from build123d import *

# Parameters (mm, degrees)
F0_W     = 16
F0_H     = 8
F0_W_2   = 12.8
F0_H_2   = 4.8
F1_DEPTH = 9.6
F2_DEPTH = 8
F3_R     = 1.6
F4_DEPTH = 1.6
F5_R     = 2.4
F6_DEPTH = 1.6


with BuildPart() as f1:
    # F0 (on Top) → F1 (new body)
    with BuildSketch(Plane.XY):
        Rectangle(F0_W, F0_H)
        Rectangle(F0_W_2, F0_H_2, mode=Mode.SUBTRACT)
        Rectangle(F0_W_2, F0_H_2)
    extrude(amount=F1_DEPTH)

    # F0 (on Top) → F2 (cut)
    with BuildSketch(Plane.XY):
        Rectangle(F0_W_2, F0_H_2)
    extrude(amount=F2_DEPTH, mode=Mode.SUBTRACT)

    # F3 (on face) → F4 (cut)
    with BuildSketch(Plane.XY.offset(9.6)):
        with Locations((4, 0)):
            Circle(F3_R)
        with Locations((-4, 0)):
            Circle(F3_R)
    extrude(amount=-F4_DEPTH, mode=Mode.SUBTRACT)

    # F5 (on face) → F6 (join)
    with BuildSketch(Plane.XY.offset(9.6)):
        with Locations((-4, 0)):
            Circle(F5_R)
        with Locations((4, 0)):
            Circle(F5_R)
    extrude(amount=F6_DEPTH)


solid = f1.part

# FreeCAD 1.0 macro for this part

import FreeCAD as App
import Part
import Sketcher
Q = App.Units.Quantity

doc = App.newDocument("Part")
params = doc.addObject("Spreadsheet::Sheet", "Params")
for row, (alias, value) in enumerate([
    ("sketch1_width", "16 mm"),
    ("sketch1_height", "8 mm"),
    ("pad1_length", "9.6 mm"),
    ("sketch2_width", "12.8 mm"),
    ("sketch2_height", "4.8 mm"),
    ("pocket1_length", "8 mm"),
    ("sketch3_diameter", "3.2 mm"),
    ("pocket2_length", "1.6 mm"),
    ("sketch4_diameter", "4.8 mm"),
    ("pad2_length", "1.6 mm"),
], start=1):
    params.set(f"A{row}", alias)
    params.set(f"B{row}", "=" + value)
    params.setAlias(f"B{row}", alias)

body = doc.addObject("PartDesign::Body", "Body")

sketch1 = body.newObject("Sketcher::SketchObject", "Sketch")
sketch1.AttachmentSupport = (doc.getObject("XY_Plane"), [""])
sketch1.MapMode = "FlatFace"
sketch1.addGeometry([
    Part.LineSegment(App.Vector(-8, 4, 0), App.Vector(-8, -4, 0)),
    Part.LineSegment(App.Vector(-8, -4, 0), App.Vector(8, -4, 0)),
    Part.LineSegment(App.Vector(8, -4, 0), App.Vector(8, 4, 0)),
    Part.LineSegment(App.Vector(8, 4, 0), App.Vector(-8, 4, 0)),
], False)
sketch1.addConstraint([
    Sketcher.Constraint("Coincident", 0, 2, 1, 1),
    Sketcher.Constraint("Coincident", 1, 2, 2, 1),
    Sketcher.Constraint("Coincident", 2, 2, 3, 1),
    Sketcher.Constraint("Coincident", 3, 2, 0, 1),
    Sketcher.Constraint("Vertical", 0),
    Sketcher.Constraint("Horizontal", 1),
    Sketcher.Constraint("Vertical", 2),
    Sketcher.Constraint("Horizontal", 3),
    Sketcher.Constraint("Symmetric", 0, 2, 2, 2, -1, 1),
    Sketcher.Constraint("DistanceX", 1, 1, 1, 2, Q("16 mm")),
    Sketcher.Constraint("DistanceY", 0, 2, 0, 1, Q("8 mm")),
])
sketch1.setExpression("Constraints[9]", "Params.sketch1_width")
sketch1.setExpression("Constraints[10]", "Params.sketch1_height")
pad1 = body.newObject("PartDesign::Pad", "Pad")
pad1.Profile = sketch1
pad1.setExpression("Length", "Params.pad1_length")

sketch2 = body.newObject("Sketcher::SketchObject", "Sketch001")
sketch2.AttachmentSupport = (doc.getObject("XY_Plane"), [""])
sketch2.MapMode = "FlatFace"
sketch2.addGeometry([
    Part.LineSegment(App.Vector(-6.4, 2.4, 0), App.Vector(-6.4, -2.4, 0)),
    Part.LineSegment(App.Vector(-6.4, -2.4, 0), App.Vector(6.4, -2.4, 0)),
    Part.LineSegment(App.Vector(6.4, -2.4, 0), App.Vector(6.4, 2.4, 0)),
    Part.LineSegment(App.Vector(6.4, 2.4, 0), App.Vector(-6.4, 2.4, 0)),
], False)
sketch2.addConstraint([
    Sketcher.Constraint("Coincident", 0, 2, 1, 1),
    Sketcher.Constraint("Coincident", 1, 2, 2, 1),
    Sketcher.Constraint("Coincident", 2, 2, 3, 1),
    Sketcher.Constraint("Coincident", 3, 2, 0, 1),
    Sketcher.Constraint("Vertical", 0),
    Sketcher.Constraint("Horizontal", 1),
    Sketcher.Constraint("Vertical", 2),
    Sketcher.Constraint("Horizontal", 3),
    Sketcher.Constraint("Symmetric", 0, 2, 2, 2, -1, 1),
    Sketcher.Constraint("DistanceX", 1, 1, 1, 2, Q("12.8 mm")),
    Sketcher.Constraint("DistanceY", 0, 2, 0, 1, Q("4.8 mm")),
])
sketch2.setExpression("Constraints[9]", "Params.sketch2_width")
sketch2.setExpression("Constraints[10]", "Params.sketch2_height")
pocket1 = body.newObject("PartDesign::Pocket", "Pocket")
pocket1.Profile = sketch2
pocket1.setExpression("Length", "Params.pocket1_length")
pocket1.Reversed = True

sketch3 = body.newObject("Sketcher::SketchObject", "Sketch002")
sketch3.AttachmentSupport = (doc.getObject("XY_Plane"), [""])
sketch3.MapMode = "FlatFace"
sketch3.AttachmentOffset = App.Placement(App.Vector(0, 0, 9.6), App.Rotation())
sketch3.addGeometry([
    Part.Circle(App.Vector(4, 0, 0), App.Vector(0, 0, 1), 1.6),
    Part.Circle(App.Vector(-4, 0, 0), App.Vector(0, 0, 1), 1.6),
], False)
sketch3.addConstraint([
    Sketcher.Constraint("Equal", 0, 1),
    Sketcher.Constraint("Symmetric", 0, 3, 1, 3, -1, 1),
    Sketcher.Constraint("PointOnObject", 0, 3, -1),
    Sketcher.Constraint("Diameter", 0, Q("3.2 mm")),
    Sketcher.Constraint("DistanceX", -1, 1, 0, 3, Q("4 mm")),
])
sketch3.setExpression("Constraints[3]", "Params.sketch3_diameter")
pocket2 = body.newObject("PartDesign::Pocket", "Pocket001")
pocket2.Profile = sketch3
pocket2.setExpression("Length", "Params.pocket2_length")

sketch4 = body.newObject("Sketcher::SketchObject", "Sketch003")
sketch4.AttachmentSupport = (doc.getObject("XY_Plane"), [""])
sketch4.MapMode = "FlatFace"
sketch4.AttachmentOffset = App.Placement(App.Vector(0, 0, 9.6), App.Rotation())
sketch4.addGeometry([
    Part.Circle(App.Vector(-4, 0, 0), App.Vector(0, 0, 1), 2.4),
    Part.Circle(App.Vector(4, 0, 0), App.Vector(0, 0, 1), 2.4),
], False)
sketch4.addConstraint([
    Sketcher.Constraint("Equal", 0, 1),
    Sketcher.Constraint("Symmetric", 0, 3, 1, 3, -1, 1),
    Sketcher.Constraint("PointOnObject", 0, 3, -1),
    Sketcher.Constraint("Diameter", 0, Q("4.8 mm")),
    Sketcher.Constraint("DistanceX", 0, 3, -1, 1, Q("4 mm")),
])
sketch4.setExpression("Constraints[3]", "Params.sketch4_diameter")
pad2 = body.newObject("PartDesign::Pad", "Pad001")
pad2.Profile = sketch4
pad2.setExpression("Length", "Params.pad2_length")

doc.recompute()
